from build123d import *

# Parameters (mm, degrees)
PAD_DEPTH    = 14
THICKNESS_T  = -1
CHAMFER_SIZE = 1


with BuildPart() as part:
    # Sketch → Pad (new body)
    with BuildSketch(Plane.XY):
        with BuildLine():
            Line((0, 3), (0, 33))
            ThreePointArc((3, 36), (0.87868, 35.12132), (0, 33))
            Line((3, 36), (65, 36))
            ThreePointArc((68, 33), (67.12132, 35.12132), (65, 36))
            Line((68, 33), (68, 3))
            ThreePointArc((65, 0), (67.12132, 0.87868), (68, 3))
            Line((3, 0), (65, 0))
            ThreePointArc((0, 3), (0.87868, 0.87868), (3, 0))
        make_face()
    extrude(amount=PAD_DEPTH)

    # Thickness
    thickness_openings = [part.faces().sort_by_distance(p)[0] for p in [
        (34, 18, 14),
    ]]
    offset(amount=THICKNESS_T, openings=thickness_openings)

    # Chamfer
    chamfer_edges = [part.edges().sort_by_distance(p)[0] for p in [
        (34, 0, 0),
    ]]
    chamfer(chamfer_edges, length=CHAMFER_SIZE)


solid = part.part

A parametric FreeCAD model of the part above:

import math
import FreeCAD as App
import Part
import Sketcher

V = App.Vector
Q = App.Units.Quantity


def edges_at(feature, points):
    """Names of the edges that pass closest to the given points."""
    edges = feature.Shape.Edges
    near = lambda p: min(range(len(edges)), key=lambda i: edges[i].distToShape(Part.Vertex(*p))[0])
    return sorted({f"Edge{near(p) + 1}" for p in points})


def faces_at(feature, points):
    """Names of the faces that lie closest to the given points."""
    faces = feature.Shape.Faces
    near = lambda p: min(range(len(faces)), key=lambda i: faces[i].distToShape(Part.Vertex(*p))[0])
    return sorted({f"Face{near(p) + 1}" for p in points})

doc = App.newDocument("Part")
body = doc.addObject("PartDesign::Body", "Body")

# Sketch on XY plane
sketch1 = body.newObject("Sketcher::SketchObject", "Sketch")
sketch1.AttachmentSupport = (doc.getObject("XY_Plane"), [""])
sketch1.MapMode = "FlatFace"
sketch1.addGeometry(Part.LineSegment(V(0, 33, 0), V(0, 3, 0)), False)
sketch1.addGeometry(Part.ArcOfCircle(Part.Circle(V(3, 3, 0), V(0, 0, 1), 3), math.radians(-180), math.radians(-90)), False)
sketch1.addGeometry(Part.LineSegment(V(3, 0, 0), V(65, 0, 0)), False)
sketch1.addGeometry(Part.ArcOfCircle(Part.Circle(V(65, 3, 0), V(0, 0, 1), 3), math.radians(-90), math.radians(0)), False)
sketch1.addGeometry(Part.LineSegment(V(68, 3, 0), V(68, 33, 0)), False)
sketch1.addGeometry(Part.ArcOfCircle(Part.Circle(V(65, 33, 0), V(0, 0, 1), 3), math.radians(0), math.radians(90)), False)
sketch1.addGeometry(Part.LineSegment(V(65, 36, 0), V(3, 36, 0)), False)
sketch1.addGeometry(Part.ArcOfCircle(Part.Circle(V(3, 33, 0), V(0, 0, 1), 3), math.radians(90), math.radians(180)), False)
sketch1.addConstraint(Sketcher.Constraint("Tangent", 0, 2, 1, 1))
sketch1.addConstraint(Sketcher.Constraint("Tangent", 1, 2, 2, 1))
sketch1.addConstraint(Sketcher.Constraint("Tangent", 2, 2, 3, 1))
sketch1.addConstraint(Sketcher.Constraint("Tangent", 3, 2, 4, 1))
sketch1.addConstraint(Sketcher.Constraint("Tangent", 4, 2, 5, 1))
sketch1.addConstraint(Sketcher.Constraint("Tangent", 5, 2, 6, 1))
sketch1.addConstraint(Sketcher.Constraint("Tangent", 6, 2, 7, 1))
sketch1.addConstraint(Sketcher.Constraint("Tangent", 7, 2, 0, 1))
sketch1.addConstraint(Sketcher.Constraint("Vertical", 0))
sketch1.addConstraint(Sketcher.Constraint("Horizontal", 2))
sketch1.addConstraint(Sketcher.Constraint("Vertical", 4))
sketch1.addConstraint(Sketcher.Constraint("Horizontal", 6))
sketch1.addConstraint(Sketcher.Constraint("Equal", 1, 3))
sketch1.addConstraint(Sketcher.Constraint("Equal", 3, 5))
sketch1.addConstraint(Sketcher.Constraint("Equal", 5, 7))
sketch1.addConstraint(Sketcher.Constraint("PointOnObject", 0, 2, -2))
sketch1.addConstraint(Sketcher.Constraint("PointOnObject", 1, 2, -1))
sketch1.addConstraint(Sketcher.Constraint("Radius", 1, Q("3.000001 mm")))
sketch1.addConstraint(Sketcher.Constraint("DistanceX", 2, 1, 2, 2, Q("62 mm")))
sketch1.addConstraint(Sketcher.Constraint("DistanceY", 0, 2, 0, 1, Q("30 mm")))
pad1 = body.newObject("PartDesign::Pad", "Pad")
pad1.Profile = sketch1
pad1.Length = 14
doc.recompute()

thickness = body.newObject("PartDesign::Thickness", "Thickness")
thickness.Base = (pad1, faces_at(pad1, [(34, 18, 14)]))
thickness.Value = 1
thickness.Reversed = True
thickness.Join = "Arc"
doc.recompute()

chamfer = body.newObject("PartDesign::Chamfer", "Chamfer")
chamfer.Base = (thickness, edges_at(thickness, [(34, 0, 0)]))
chamfer.Size = 1

doc.recompute()
